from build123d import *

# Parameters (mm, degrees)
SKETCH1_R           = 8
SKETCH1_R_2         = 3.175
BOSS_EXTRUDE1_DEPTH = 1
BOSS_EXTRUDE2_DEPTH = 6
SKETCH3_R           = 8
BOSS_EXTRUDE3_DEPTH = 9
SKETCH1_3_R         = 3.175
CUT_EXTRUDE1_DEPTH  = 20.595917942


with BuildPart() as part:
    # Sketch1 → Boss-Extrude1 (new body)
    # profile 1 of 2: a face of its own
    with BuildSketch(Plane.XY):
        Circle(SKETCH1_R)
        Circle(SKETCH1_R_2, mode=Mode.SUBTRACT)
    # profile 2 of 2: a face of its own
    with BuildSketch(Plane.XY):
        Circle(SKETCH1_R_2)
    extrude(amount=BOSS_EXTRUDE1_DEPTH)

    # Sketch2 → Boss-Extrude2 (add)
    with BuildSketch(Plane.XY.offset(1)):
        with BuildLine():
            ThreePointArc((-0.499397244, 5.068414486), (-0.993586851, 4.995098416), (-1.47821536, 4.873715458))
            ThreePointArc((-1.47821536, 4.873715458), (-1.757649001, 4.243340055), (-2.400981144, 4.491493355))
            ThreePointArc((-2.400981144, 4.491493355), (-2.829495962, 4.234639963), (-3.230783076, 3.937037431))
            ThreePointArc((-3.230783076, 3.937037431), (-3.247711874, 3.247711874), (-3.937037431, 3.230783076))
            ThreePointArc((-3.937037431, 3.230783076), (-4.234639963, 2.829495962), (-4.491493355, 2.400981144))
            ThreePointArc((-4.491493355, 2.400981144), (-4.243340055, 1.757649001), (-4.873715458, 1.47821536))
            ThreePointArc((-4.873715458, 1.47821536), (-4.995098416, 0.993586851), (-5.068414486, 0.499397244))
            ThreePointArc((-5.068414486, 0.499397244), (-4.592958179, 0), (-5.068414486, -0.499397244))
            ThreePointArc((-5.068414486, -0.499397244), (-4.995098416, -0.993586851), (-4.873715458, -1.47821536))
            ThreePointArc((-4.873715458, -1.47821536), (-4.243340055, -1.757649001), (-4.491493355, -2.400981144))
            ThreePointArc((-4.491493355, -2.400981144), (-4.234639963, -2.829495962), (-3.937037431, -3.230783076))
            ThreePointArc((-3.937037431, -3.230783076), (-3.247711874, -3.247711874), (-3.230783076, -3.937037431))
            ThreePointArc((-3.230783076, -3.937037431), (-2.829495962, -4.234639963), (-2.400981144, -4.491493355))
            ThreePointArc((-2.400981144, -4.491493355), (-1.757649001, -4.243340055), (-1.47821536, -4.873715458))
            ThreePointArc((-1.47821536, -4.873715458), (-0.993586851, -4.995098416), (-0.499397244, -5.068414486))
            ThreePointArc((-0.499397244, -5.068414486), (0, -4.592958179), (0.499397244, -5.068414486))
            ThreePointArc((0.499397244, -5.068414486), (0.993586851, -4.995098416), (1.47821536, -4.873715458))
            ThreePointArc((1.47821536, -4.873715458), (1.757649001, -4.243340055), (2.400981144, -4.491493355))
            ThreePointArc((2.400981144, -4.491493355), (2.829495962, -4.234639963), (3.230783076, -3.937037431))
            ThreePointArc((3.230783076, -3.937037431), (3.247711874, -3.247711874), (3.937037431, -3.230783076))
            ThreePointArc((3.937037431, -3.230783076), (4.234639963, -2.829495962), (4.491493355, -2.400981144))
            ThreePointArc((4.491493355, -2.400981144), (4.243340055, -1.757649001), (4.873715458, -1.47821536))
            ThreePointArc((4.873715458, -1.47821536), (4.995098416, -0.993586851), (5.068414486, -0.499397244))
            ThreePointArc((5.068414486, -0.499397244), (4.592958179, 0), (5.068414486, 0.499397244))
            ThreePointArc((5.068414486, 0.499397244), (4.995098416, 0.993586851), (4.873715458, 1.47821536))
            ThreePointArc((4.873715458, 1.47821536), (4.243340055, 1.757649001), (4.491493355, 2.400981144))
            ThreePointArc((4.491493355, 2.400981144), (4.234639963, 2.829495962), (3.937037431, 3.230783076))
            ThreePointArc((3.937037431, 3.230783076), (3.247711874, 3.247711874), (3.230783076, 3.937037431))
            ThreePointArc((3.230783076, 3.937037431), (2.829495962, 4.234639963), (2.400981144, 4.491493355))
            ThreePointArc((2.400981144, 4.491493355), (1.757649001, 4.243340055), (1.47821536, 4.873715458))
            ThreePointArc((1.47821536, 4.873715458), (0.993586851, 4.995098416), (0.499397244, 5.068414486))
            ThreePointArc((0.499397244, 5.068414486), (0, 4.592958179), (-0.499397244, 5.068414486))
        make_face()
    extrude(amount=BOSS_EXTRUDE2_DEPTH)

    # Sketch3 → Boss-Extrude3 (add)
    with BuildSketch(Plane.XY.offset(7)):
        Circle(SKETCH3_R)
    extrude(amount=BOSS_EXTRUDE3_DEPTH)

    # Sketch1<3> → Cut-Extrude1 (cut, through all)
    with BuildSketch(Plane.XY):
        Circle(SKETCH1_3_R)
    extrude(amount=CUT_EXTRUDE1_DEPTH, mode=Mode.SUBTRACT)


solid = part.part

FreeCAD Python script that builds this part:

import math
import FreeCAD as App
import Part
import Sketcher
from FreeCAD import Vector

doc = App.newDocument("Part")
body = doc.addObject("PartDesign::Body", "Body")

# Sketch on XY plane
sketch1 = body.newObject("Sketcher::SketchObject", "Sketch")
sketch1.AttachmentSupport = (doc.getObject("XY_Plane"), [""])
sketch1.MapMode = "FlatFace"
sketch1.addGeometry(Part.Circle(Vector(0, 0, 0), Vector(0, 0, 1), 8), False)
sketch1.addConstraint(Sketcher.Constraint("Coincident", 0, 3, -1, 1))
sketch1.addConstraint(Sketcher.Constraint("Diameter", 0, 16.0))
pad1 = body.newObject("PartDesign::Pad", "Pad")
pad1.Profile = sketch1
pad1.Length = 1

# Sketch on XY plane
sketch2 = body.newObject("Sketcher::SketchObject", "Sketch001")
sketch2.AttachmentSupport = (doc.getObject("XY_Plane"), [""])
sketch2.MapMode = "FlatFace"
sketch2.AttachmentOffset = App.Placement(Vector(0, 0, 1), App.Rotation())
sketch2.addGeometry(Part.ArcOfCircle(Part.Circle(Vector(0, 0, 0), Vector(0, 0, 1), 5.1), math.radians(95.63), math.radians(106.87)), False)
sketch2.addGeometry(Part.ArcOfCircle(Part.Circle(Vector(-1.9, 4.7, 0), Vector(0, 0, 1), 0.5), math.radians(-155), math.radians(20)), False)
sketch2.addGeometry(Part.ArcOfCircle(Part.Circle(Vector(0, 0, 0), Vector(0, 0, 1), 5.1), math.radians(118.13), math.radians(129.37)), False)
sketch2.addGeometry(Part.ArcOfCircle(Part.Circle(Vector(-3.6, 3.6, 0), Vector(0, 0, 1), 0.5), math.radians(-132), math.radians(42)), False)
sketch2.addGeometry(Part.ArcOfCircle(Part.Circle(Vector(0, 0, 0), Vector(0, 0, 1), 5.1), math.radians(140.63), math.radians(151.87)), False)
sketch2.addGeometry(Part.ArcOfCircle(Part.Circle(Vector(-4.7, 1.9, 0), Vector(0, 0, 1), 0.5), math.radians(-110), math.radians(65)), False)
sketch2.addGeometry(Part.ArcOfCircle(Part.Circle(Vector(0, 0, 0), Vector(0, 0, 1), 5.1), math.radians(163.13), math.radians(174.37)), False)
sketch2.addGeometry(Part.ArcOfCircle(Part.Circle(Vector(-5.1, 0, 0), Vector(0, 0, 1), 0.5), math.radians(-87), math.radians(87)), False)
sketch2.addGeometry(Part.ArcOfCircle(Part.Circle(Vector(0, 0, 0), Vector(0, 0, 1), 5.1), math.radians(-174.37), math.radians(-163.13)), False)
sketch2.addGeometry(Part.ArcOfCircle(Part.Circle(Vector(-4.7, -1.9, 0), Vector(0, 0, 1), 0.5), math.radians(-65), math.radians(110)), False)
sketch2.addGeometry(Part.ArcOfCircle(Part.Circle(Vector(0, 0, 0), Vector(0, 0, 1), 5.1), math.radians(-151.87), math.radians(-140.63)), False)
sketch2.addGeometry(Part.ArcOfCircle(Part.Circle(Vector(-3.6, -3.6, 0), Vector(0, 0, 1), 0.5), math.radians(-42), math.radians(132)), False)
sketch2.addGeometry(Part.ArcOfCircle(Part.Circle(Vector(0, 0, 0), Vector(0, 0, 1), 5.1), math.radians(-129.37), math.radians(-118.13)), False)
sketch2.addGeometry(Part.ArcOfCircle(Part.Circle(Vector(-1.9, -4.7, 0), Vector(0, 0, 1), 0.5), math.radians(-20), math.radians(155)), False)
sketch2.addGeometry(Part.ArcOfCircle(Part.Circle(Vector(0, 0, 0), Vector(0, 0, 1), 5.1), math.radians(-106.87), math.radians(-95.63)), False)
sketch2.addGeometry(Part.ArcOfCircle(Part.Circle(Vector(0, -5.1, 0), Vector(0, 0, 1), 0.5), math.radians(3), math.radians(177)), False)
sketch2.addGeometry(Part.ArcOfCircle(Part.Circle(Vector(0, 0, 0), Vector(0, 0, 1), 5.1), math.radians(-84.37), math.radians(-73.13)), False)
sketch2.addGeometry(Part.ArcOfCircle(Part.Circle(Vector(1.9, -4.7, 0), Vector(0, 0, 1), 0.5), math.radians(25), math.radians(200)), False)
sketch2.addGeometry(Part.ArcOfCircle(Part.Circle(Vector(0, 0, 0), Vector(0, 0, 1), 5.1), math.radians(-61.87), math.radians(-50.63)), False)
sketch2.addGeometry(Part.ArcOfCircle(Part.Circle(Vector(3.6, -3.6, 0), Vector(0, 0, 1), 0.5), math.radians(48), math.radians(222)), False)
sketch2.addGeometry(Part.ArcOfCircle(Part.Circle(Vector(0, 0, 0), Vector(0, 0, 1), 5.1), math.radians(-39.37), math.radians(-28.13)), False)
sketch2.addGeometry(Part.ArcOfCircle(Part.Circle(Vector(4.7, -1.9, 0), Vector(0, 0, 1), 0.5), math.radians(70), math.radians(245)), False)
sketch2.addGeometry(Part.ArcOfCircle(Part.Circle(Vector(0, 0, 0), Vector(0, 0, 1), 5.1), math.radians(-16.87), math.radians(-5.63)), False)
sketch2.addGeometry(Part.ArcOfCircle(Part.Circle(Vector(5.1, 0, 0), Vector(0, 0, 1), 0.5), math.radians(93), math.radians(267)), False)
sketch2.addGeometry(Part.ArcOfCircle(Part.Circle(Vector(0, 0, 0), Vector(0, 0, 1), 5.1), math.radians(5.63), math.radians(16.87)), False)
sketch2.addGeometry(Part.ArcOfCircle(Part.Circle(Vector(4.7, 1.9, 0), Vector(0, 0, 1), 0.5), math.radians(115), math.radians(290)), False)
sketch2.addGeometry(Part.ArcOfCircle(Part.Circle(Vector(0, 0, 0), Vector(0, 0, 1), 5.1), math.radians(28.13), math.radians(39.37)), False)
sketch2.addGeometry(Part.ArcOfCircle(Part.Circle(Vector(3.6, 3.6, 0), Vector(0, 0, 1), 0.5), math.radians(138), math.radians(312)), False)
sketch2.addGeometry(Part.ArcOfCircle(Part.Circle(Vector(0, 0, 0), Vector(0, 0, 1), 5.1), math.radians(50.63), math.radians(61.87)), False)
sketch2.addGeometry(Part.ArcOfCircle(Part.Circle(Vector(1.9, 4.7, 0), Vector(0, 0, 1), 0.5), math.radians(160), math.radians(335)), False)
sketch2.addGeometry(Part.ArcOfCircle(Part.Circle(Vector(0, 0, 0), Vector(0, 0, 1), 5.1), math.radians(73.13), math.radians(84.37)), False)
sketch2.addGeometry(Part.ArcOfCircle(Part.Circle(Vector(0, 5.1, 0), Vector(0, 0, 1), 0.5), math.radians(-177), math.radians(-3)), False)
sketch2.addConstraint(Sketcher.Constraint("Coincident", 0, 2, 1, 2))
sketch2.addConstraint(Sketcher.Constraint("Coincident", 1, 1, 2, 1))
sketch2.addConstraint(Sketcher.Constraint("Coincident", 2, 2, 3, 2))
sketch2.addConstraint(Sketcher.Constraint("Coincident", 3, 1, 4, 1))
sketch2.addConstraint(Sketcher.Constraint("Coincident", 4, 2, 5, 2))
sketch2.addConstraint(Sketcher.Constraint("Coincident", 5, 1, 6, 1))
sketch2.addConstraint(Sketcher.Constraint("Coincident", 6, 2, 7, 2))
sketch2.addConstraint(Sketcher.Constraint("Coincident", 7, 1, 8, 1))
sketch2.addConstraint(Sketcher.Constraint("Coincident", 8, 2, 9, 2))
sketch2.addConstraint(Sketcher.Constraint("Coincident", 9, 1, 10, 1))
sketch2.addConstraint(Sketcher.Constraint("Coincident", 10, 2, 11, 2))
sketch2.addConstraint(Sketcher.Constraint("Coincident", 11, 1, 12, 1))
sketch2.addConstraint(Sketcher.Constraint("Coincident", 12, 2, 13, 2))
sketch2.addConstraint(Sketcher.Constraint("Coincident", 13, 1, 14, 1))
sketch2.addConstraint(Sketcher.Constraint("Coincident", 14, 2, 15, 2))
sketch2.addConstraint(Sketcher.Constraint("Coincident", 15, 1, 16, 1))
sketch2.addConstraint(Sketcher.Constraint("Coincident", 16, 2, 17, 2))
sketch2.addConstraint(Sketcher.Constraint("Coincident", 17, 1, 18, 1))
sketch2.addConstraint(Sketcher.Constraint("Coincident", 18, 2, 19, 2))
sketch2.addConstraint(Sketcher.Constraint("Coincident", 19, 1, 20, 1))
sketch2.addConstraint(Sketcher.Constraint("Coincident", 20, 2, 21, 2))
sketch2.addConstraint(Sketcher.Constraint("Coincident", 21, 1, 22, 1))
sketch2.addConstraint(Sketcher.Constraint("Coincident", 22, 2, 23, 2))
sketch2.addConstraint(Sketcher.Constraint("Coincident", 23, 1, 24, 1))
sketch2.addConstraint(Sketcher.Constraint("Coincident", 24, 2, 25, 2))
sketch2.addConstraint(Sketcher.Constraint("Coincident", 25, 1, 26, 1))
sketch2.addConstraint(Sketcher.Constraint("Coincident", 26, 2, 27, 2))
sketch2.addConstraint(Sketcher.Constraint("Coincident", 27, 1, 28, 1))
sketch2.addConstraint(Sketcher.Constraint("Coincident", 28, 2, 29, 2))
sketch2.addConstraint(Sketcher.Constraint("Coincident", 29, 1, 30, 1))
sketch2.addConstraint(Sketcher.Constraint("Coincident", 30, 2, 31, 2))
sketch2.addConstraint(Sketcher.Constraint("Coincident", 31, 1, 0, 1))
sketch2.addConstraint(Sketcher.Constraint("Coincident", 0, 3, -1, 1))
sketch2.addConstraint(Sketcher.Constraint("Coincident", 2, 3, -1, 1))
sketch2.addConstraint(Sketcher.Constraint("Coincident", 4, 3, -1, 1))
sketch2.addConstraint(Sketcher.Constraint("Coincident", 6, 3, -1, 1))
sketch2.addConstraint(Sketcher.Constraint("Coincident", 8, 3, -1, 1))
sketch2.addConstraint(Sketcher.Constraint("Coincident", 10, 3, -1, 1))
sketch2.addConstraint(Sketcher.Constraint("Coincident", 12, 3, -1, 1))
sketch2.addConstraint(Sketcher.Constraint("Coincident", 14, 3, -1, 1))
sketch2.addConstraint(Sketcher.Constraint("Coincident", 16, 3, -1, 1))
sketch2.addConstraint(Sketcher.Constraint("Coincident", 18, 3, -1, 1))
sketch2.addConstraint(Sketcher.Constraint("Coincident", 20, 3, -1, 1))
sketch2.addConstraint(Sketcher.Constraint("Coincident", 22, 3, -1, 1))
sketch2.addConstraint(Sketcher.Constraint("Coincident", 24, 3, -1, 1))
sketch2.addConstraint(Sketcher.Constraint("Coincident", 26, 3, -1, 1))
sketch2.addConstraint(Sketcher.Constraint("Coincident", 28, 3, -1, 1))
sketch2.addConstraint(Sketcher.Constraint("Coincident", 30, 3, -1, 1))
sketch2.addConstraint(Sketcher.Constraint("Equal", 0, 2))
sketch2.addConstraint(Sketcher.Constraint("Equal", 1, 3))
sketch2.addConstraint(Sketcher.Constraint("Equal", 2, 4))
sketch2.addConstraint(Sketcher.Constraint("Equal", 3, 5))
sketch2.addConstraint(Sketcher.Constraint("Equal", 4, 6))
sketch2.addConstraint(Sketcher.Constraint("Equal", 5, 7))
sketch2.addConstraint(Sketcher.Constraint("Equal", 6, 8))
sketch2.addConstraint(Sketcher.Constraint("Equal", 7, 9))
sketch2.addConstraint(Sketcher.Constraint("Equal", 8, 10))
sketch2.addConstraint(Sketcher.Constraint("Equal", 9, 11))
sketch2.addConstraint(Sketcher.Constraint("Equal", 10, 12))
sketch2.addConstraint(Sketcher.Constraint("Equal", 11, 13))
sketch2.addConstraint(Sketcher.Constraint("Equal", 12, 14))
sketch2.addConstraint(Sketcher.Constraint("Equal", 13, 15))
sketch2.addConstraint(Sketcher.Constraint("Equal", 14, 16))
sketch2.addConstraint(Sketcher.Constraint("Equal", 15, 17))
sketch2.addConstraint(Sketcher.Constraint("Equal", 16, 18))
sketch2.addConstraint(Sketcher.Constraint("Equal", 17, 19))
sketch2.addConstraint(Sketcher.Constraint("Equal", 18, 20))
sketch2.addConstraint(Sketcher.Constraint("Equal", 19, 21))
sketch2.addConstraint(Sketcher.Constraint("Equal", 20, 22))
sketch2.addConstraint(Sketcher.Constraint("Equal", 21, 23))
sketch2.addConstraint(Sketcher.Constraint("Equal", 22, 24))
sketch2.addConstraint(Sketcher.Constraint("Equal", 23, 25))
sketch2.addConstraint(Sketcher.Constraint("Equal", 24, 26))
sketch2.addConstraint(Sketcher.Constraint("Equal", 25, 27))
sketch2.addConstraint(Sketcher.Constraint("Equal", 26, 28))
sketch2.addConstraint(Sketcher.Constraint("Equal", 27, 29))
sketch2.addConstraint(Sketcher.Constraint("Equal", 28, 30))
sketch2.addConstraint(Sketcher.Constraint("Equal", 29, 31))
sketch2.addConstraint(Sketcher.Constraint("Symmetric", 1, 3, 17, 3, -1, 1))
sketch2.addConstraint(Sketcher.Constraint("Symmetric", 3, 3, 19, 3, -1, 1))
sketch2.addConstraint(Sketcher.Constraint("Symmetric", 5, 3, 21, 3, -1, 1))
sketch2.addConstraint(Sketcher.Constraint("Symmetric", 7, 3, 23, 3, -1, 1))
sketch2.addConstraint(Sketcher.Constraint("Symmetric", 9, 3, 25, 3, -1, 1))
sketch2.addConstraint(Sketcher.Constraint("Symmetric", 11, 3, 27, 3, -1, 1))
sketch2.addConstraint(Sketcher.Constraint("Symmetric", 13, 3, 29, 3, -1, 1))
sketch2.addConstraint(Sketcher.Constraint("Symmetric", 15, 3, 31, 3, -1, 1))
sketch2.addConstraint(Sketcher.Constraint("Symmetric", 13, 3, 17, 3, -2))
sketch2.addConstraint(Sketcher.Constraint("Symmetric", 11, 3, 19, 3, -2))
sketch2.addConstraint(Sketcher.Constraint("Symmetric", 9, 3, 21, 3, -2))
sketch2.addConstraint(Sketcher.Constraint("PointOnObject", 7, 3, -1))
sketch2.addConstraint(Sketcher.Constraint("PointOnObject", 15, 3, -2))
sketch2.addConstraint(Sketcher.Constraint("Radius", 1, 0.5))
sketch2.addConstraint(Sketcher.Constraint("Radius", 0, 5.092958))
sketch2.addConstraint(Sketcher.Constraint("DistanceX", 1, 3, -1, 1, 1.948991))
sketch2.addConstraint(Sketcher.Constraint("DistanceY", -1, 1, 1, 3, 4.70528))
sketch2.addConstraint(Sketcher.Constraint("DistanceX", 5, 3, -1, 1, 4.70528))
sketch2.addConstraint(Sketcher.Constraint("DistanceY", -1, 1, 5, 3, 1.948991))
sketch2.addConstraint(Sketcher.Constraint("DistanceX", 7, 3, -1, 1, 5.092958))
sketch2.addConstraint(Sketcher.Constraint("DistanceY", 15, 3, -1, 1, 5.092958))
sketch2.addConstraint(Sketcher.Constraint("DistanceX", 3, 3, -1, 1, 3.601265))
sketch2.addConstraint(Sketcher.Constraint("DistanceY", -1, 1, 3, 3, 3.601265))
pad2 = body.newObject("PartDesign::Pad", "Pad001")
pad2.Profile = sketch2
pad2.Length = 6

# Sketch on XY plane
sketch3 = body.newObject("Sketcher::SketchObject", "Sketch002")
sketch3.AttachmentSupport = (doc.getObject("XY_Plane"), [""])
sketch3.MapMode = "FlatFace"
sketch3.AttachmentOffset = App.Placement(Vector(0, 0, 7), App.Rotation())
sketch3.addGeometry(Part.Circle(Vector(0, 0, 0), Vector(0, 0, 1), 8), False)
sketch3.addConstraint(Sketcher.Constraint("Coincident", 0, 3, -1, 1))
sketch3.addConstraint(Sketcher.Constraint("Diameter", 0, 16.0))
pad3 = body.newObject("PartDesign::Pad", "Pad002")
pad3.Profile = sketch3
pad3.Length = 9

# Sketch on XY plane
sketch4 = body.newObject("Sketcher::SketchObject", "Sketch003")
sketch4.AttachmentSupport = (doc.getObject("XY_Plane"), [""])
sketch4.MapMode = "FlatFace"
sketch4.addGeometry(Part.Circle(Vector(0, 0, 0), Vector(0, 0, 1), 3.2), False)
sketch4.addConstraint(Sketcher.Constraint("Coincident", 0, 3, -1, 1))
sketch4.addConstraint(Sketcher.Constraint("Diameter", 0, 6.35))
pocket1 = body.newObject("PartDesign::Pocket", "Pocket")
pocket1.Profile = sketch4
pocket1.Type = "ThroughAll"
pocket1.Reversed = True

doc.recompute()
